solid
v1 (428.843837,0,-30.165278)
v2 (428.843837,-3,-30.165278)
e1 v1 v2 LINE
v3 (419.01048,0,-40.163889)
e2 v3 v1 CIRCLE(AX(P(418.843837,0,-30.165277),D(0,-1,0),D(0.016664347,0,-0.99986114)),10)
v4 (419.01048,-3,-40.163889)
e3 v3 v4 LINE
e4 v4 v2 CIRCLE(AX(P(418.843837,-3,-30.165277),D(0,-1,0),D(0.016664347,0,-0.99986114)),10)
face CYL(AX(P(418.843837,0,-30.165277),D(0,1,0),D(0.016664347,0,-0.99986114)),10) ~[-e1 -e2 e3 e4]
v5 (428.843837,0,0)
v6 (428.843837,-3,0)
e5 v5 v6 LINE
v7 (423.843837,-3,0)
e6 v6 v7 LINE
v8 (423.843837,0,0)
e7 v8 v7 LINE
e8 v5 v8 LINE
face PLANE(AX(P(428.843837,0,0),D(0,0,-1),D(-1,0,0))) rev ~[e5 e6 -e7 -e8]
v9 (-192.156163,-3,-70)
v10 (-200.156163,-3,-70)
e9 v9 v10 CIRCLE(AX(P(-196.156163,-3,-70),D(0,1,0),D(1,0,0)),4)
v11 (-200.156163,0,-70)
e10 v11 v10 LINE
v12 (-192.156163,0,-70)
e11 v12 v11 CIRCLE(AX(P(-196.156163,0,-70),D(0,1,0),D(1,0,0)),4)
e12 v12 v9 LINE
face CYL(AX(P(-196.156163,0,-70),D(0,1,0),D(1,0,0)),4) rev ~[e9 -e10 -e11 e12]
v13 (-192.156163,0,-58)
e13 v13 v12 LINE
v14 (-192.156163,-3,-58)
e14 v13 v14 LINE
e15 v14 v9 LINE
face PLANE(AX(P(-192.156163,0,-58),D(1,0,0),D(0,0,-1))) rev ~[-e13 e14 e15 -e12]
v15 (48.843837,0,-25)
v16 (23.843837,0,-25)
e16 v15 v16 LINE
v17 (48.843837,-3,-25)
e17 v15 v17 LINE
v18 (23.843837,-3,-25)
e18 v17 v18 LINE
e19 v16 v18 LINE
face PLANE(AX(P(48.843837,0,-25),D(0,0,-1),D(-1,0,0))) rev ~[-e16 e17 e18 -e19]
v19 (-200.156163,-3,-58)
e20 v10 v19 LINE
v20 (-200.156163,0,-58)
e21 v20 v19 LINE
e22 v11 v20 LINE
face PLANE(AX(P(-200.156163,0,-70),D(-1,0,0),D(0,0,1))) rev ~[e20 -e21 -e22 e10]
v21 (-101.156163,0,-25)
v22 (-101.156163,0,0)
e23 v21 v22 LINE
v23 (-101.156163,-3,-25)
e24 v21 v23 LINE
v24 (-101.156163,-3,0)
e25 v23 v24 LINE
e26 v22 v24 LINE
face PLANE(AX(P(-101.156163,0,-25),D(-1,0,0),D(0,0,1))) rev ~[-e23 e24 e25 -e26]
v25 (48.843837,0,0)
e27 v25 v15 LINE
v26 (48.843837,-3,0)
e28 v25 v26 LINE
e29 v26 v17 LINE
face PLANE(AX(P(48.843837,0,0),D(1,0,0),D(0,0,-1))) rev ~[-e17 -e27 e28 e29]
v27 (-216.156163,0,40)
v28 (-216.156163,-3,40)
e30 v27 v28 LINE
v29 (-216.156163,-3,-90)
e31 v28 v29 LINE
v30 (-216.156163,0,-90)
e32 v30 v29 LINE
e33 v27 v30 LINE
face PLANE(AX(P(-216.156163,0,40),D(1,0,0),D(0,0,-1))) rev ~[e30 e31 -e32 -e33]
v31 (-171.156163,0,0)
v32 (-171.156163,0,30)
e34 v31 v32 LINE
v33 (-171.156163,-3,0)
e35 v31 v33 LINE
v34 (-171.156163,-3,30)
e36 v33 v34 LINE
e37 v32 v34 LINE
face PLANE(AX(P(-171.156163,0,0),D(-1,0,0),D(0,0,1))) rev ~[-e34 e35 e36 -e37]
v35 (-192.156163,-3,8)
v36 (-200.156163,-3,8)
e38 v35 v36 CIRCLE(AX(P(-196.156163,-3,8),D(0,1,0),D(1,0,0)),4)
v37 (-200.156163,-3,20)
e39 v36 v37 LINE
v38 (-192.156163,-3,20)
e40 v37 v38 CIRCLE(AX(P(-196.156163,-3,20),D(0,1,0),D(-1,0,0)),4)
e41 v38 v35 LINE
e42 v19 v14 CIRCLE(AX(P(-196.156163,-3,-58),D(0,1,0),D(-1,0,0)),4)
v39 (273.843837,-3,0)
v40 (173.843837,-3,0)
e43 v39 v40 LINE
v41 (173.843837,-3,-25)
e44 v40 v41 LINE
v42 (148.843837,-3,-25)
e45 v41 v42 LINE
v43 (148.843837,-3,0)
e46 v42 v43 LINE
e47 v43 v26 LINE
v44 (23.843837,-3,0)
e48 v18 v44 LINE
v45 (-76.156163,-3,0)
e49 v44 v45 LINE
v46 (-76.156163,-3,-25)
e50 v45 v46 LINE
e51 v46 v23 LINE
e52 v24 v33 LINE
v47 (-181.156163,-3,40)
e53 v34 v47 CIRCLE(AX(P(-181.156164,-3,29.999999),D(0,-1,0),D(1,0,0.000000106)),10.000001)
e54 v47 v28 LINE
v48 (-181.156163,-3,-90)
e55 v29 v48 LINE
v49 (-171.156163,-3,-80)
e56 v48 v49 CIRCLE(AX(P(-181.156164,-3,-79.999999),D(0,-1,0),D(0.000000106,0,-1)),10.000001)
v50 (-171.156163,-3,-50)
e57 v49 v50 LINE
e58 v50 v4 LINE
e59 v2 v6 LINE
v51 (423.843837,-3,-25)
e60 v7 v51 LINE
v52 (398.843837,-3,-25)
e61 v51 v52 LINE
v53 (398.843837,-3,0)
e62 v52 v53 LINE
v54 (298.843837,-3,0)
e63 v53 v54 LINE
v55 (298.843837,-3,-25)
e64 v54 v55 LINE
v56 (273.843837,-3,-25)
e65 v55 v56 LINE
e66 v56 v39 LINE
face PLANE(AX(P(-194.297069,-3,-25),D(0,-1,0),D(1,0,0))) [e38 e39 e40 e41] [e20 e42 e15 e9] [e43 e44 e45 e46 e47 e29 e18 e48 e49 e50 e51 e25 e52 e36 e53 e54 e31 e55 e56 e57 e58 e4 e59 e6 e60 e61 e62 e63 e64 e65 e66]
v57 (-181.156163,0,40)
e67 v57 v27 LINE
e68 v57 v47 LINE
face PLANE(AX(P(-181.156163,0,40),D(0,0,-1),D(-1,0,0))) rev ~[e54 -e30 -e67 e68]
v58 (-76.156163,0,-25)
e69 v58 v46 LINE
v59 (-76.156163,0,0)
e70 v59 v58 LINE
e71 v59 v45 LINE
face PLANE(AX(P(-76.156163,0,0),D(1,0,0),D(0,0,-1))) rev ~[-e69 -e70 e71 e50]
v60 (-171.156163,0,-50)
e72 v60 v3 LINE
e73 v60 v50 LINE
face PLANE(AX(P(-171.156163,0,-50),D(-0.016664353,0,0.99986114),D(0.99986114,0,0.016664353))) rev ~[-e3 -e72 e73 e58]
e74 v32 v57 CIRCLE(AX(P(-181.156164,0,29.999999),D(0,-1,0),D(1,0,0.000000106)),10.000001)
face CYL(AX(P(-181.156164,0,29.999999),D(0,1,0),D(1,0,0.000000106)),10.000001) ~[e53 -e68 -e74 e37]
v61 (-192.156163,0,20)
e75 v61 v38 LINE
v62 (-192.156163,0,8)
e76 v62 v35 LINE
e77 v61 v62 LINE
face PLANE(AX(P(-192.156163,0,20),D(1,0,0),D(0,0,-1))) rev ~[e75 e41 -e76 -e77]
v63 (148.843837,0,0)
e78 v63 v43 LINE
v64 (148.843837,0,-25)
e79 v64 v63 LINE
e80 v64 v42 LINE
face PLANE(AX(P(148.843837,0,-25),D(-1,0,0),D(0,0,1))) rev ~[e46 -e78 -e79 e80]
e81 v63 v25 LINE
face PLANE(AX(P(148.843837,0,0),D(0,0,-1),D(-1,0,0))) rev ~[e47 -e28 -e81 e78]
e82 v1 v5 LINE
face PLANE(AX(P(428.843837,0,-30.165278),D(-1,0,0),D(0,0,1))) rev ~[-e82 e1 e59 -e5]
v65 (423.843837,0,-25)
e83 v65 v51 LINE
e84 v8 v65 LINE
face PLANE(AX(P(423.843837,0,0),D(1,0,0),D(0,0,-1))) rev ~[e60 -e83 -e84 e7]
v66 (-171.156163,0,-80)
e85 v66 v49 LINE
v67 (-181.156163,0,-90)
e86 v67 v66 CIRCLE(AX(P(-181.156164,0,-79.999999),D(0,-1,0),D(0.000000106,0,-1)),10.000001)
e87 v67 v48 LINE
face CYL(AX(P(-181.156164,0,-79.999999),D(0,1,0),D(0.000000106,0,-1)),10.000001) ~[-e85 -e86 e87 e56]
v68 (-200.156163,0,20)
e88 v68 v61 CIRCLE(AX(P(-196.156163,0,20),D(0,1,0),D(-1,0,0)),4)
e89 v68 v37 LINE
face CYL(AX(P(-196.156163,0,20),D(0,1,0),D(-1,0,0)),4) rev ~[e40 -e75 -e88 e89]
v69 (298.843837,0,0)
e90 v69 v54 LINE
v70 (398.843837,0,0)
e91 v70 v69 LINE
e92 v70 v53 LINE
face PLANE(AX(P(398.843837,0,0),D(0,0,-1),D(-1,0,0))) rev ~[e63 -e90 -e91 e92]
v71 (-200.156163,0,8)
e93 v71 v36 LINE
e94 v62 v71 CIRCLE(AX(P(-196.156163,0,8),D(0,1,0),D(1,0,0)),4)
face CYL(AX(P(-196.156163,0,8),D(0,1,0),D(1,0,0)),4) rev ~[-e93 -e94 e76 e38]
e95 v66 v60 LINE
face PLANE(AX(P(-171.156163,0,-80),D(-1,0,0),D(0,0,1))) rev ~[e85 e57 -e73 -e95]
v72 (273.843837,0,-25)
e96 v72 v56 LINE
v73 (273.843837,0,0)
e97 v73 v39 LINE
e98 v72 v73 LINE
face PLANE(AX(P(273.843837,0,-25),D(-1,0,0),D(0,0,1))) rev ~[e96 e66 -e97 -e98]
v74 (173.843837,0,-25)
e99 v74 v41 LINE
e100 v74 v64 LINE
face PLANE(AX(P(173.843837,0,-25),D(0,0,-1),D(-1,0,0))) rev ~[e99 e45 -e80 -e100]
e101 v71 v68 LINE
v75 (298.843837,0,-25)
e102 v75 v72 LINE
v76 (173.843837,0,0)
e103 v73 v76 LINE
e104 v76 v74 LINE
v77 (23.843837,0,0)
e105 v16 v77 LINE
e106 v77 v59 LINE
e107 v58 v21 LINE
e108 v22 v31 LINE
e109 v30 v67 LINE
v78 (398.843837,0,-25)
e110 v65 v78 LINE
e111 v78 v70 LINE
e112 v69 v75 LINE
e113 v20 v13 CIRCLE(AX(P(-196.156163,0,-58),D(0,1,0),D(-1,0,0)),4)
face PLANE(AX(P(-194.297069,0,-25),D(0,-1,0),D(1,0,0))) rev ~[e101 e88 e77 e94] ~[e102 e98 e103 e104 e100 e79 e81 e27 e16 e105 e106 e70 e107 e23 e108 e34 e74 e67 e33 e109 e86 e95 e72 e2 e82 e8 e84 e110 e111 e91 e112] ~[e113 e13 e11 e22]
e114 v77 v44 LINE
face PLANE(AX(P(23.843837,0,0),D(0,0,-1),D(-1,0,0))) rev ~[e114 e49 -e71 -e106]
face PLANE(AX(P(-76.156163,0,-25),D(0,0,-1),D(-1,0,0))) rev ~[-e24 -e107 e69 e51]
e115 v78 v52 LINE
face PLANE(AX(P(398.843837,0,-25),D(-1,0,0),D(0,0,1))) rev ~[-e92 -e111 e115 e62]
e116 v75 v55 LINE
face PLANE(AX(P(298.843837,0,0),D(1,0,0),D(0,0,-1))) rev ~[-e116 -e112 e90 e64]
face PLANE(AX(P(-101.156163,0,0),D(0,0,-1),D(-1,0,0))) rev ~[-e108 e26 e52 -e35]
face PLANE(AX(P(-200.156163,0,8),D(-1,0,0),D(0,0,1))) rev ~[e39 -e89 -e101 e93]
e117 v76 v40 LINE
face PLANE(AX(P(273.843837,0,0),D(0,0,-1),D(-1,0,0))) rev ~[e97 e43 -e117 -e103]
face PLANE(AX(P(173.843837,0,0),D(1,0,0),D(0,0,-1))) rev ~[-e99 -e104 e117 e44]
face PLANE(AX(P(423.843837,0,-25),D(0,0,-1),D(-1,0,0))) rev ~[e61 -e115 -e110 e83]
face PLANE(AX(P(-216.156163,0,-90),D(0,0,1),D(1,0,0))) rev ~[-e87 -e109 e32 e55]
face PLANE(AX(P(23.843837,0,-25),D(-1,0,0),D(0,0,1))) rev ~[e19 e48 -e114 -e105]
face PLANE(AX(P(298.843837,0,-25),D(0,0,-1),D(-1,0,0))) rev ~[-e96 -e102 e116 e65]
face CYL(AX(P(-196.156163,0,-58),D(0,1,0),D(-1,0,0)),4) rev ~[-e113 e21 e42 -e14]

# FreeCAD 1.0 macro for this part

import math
import FreeCAD as App
import Part
import Sketcher
from FreeCAD import Vector

doc = App.newDocument("Part")
body = doc.addObject("PartDesign::Body", "Body")

sketch1 = body.newObject("Sketcher::SketchObject", "Sketch")
sketch1.AttachmentSupport = (doc.getObject("XZ_Plane"), [""])
sketch1.MapMode = "FlatFace"
sketch1.addGeometry([
    Part.ArcOfCircle(Part.Circle(Vector(-181.156164, 29.999999, 0), Vector(0, 0, 1), 10.000001), math.radians(0.000006), math.radians(89.999994)),
    Part.LineSegment(Vector(-181.156163, 40, 0), Vector(-216.156163, 40, 0)),
    Part.LineSegment(Vector(-216.156163, 40, 0), Vector(-216.156163, -90, 0)),
    Part.LineSegment(Vector(-216.156163, -90, 0), Vector(-181.156163, -90, 0)),
    Part.ArcOfCircle(Part.Circle(Vector(-181.156164, -79.999999, 0), Vector(0, 0, 1), 10.000001), math.radians(-89.999994), math.radians(-0.000006)),
    Part.LineSegment(Vector(-171.156163, -80, 0), Vector(-171.156163, -50, 0)),
    Part.LineSegment(Vector(-171.156163, -50, 0), Vector(419.01048, -40.163889, 0)),
    Part.ArcOfCircle(Part.Circle(Vector(418.843837, -30.165277, 0), Vector(0, 0, 1), 10), math.radians(-89.045159), math.radians(-0.000005)),
    Part.LineSegment(Vector(428.843837, -30.165278, 0), Vector(428.843837, 0, 0)),
    Part.LineSegment(Vector(428.843837, 0, 0), Vector(423.843837, 0, 0)),
    Part.LineSegment(Vector(423.843837, 0, 0), Vector(423.843837, -25, 0)),
    Part.LineSegment(Vector(423.843837, -25, 0), Vector(398.843837, -25, 0)),
    Part.LineSegment(Vector(398.843837, -25, 0), Vector(398.843837, 0, 0)),
    Part.LineSegment(Vector(398.843837, 0, 0), Vector(298.843837, 0, 0)),
    Part.LineSegment(Vector(298.843837, 0, 0), Vector(298.843837, -25, 0)),
    Part.LineSegment(Vector(298.843837, -25, 0), Vector(273.843837, -25, 0)),
    Part.LineSegment(Vector(273.843837, -25, 0), Vector(273.843837, 0, 0)),
    Part.LineSegment(Vector(273.843837, 0, 0), Vector(173.843837, 0, 0)),
    Part.LineSegment(Vector(173.843837, 0, 0), Vector(173.843837, -25, 0)),
    Part.LineSegment(Vector(173.843837, -25, 0), Vector(148.843837, -25, 0)),
    Part.LineSegment(Vector(148.843837, -25, 0), Vector(148.843837, 0, 0)),
    Part.LineSegment(Vector(148.843837, 0, 0), Vector(48.843837, 0, 0)),
    Part.LineSegment(Vector(48.843837, 0, 0), Vector(48.843837, -25, 0)),
    Part.LineSegment(Vector(48.843837, -25, 0), Vector(23.843837, -25, 0)),
    Part.LineSegment(Vector(23.843837, -25, 0), Vector(23.843837, 0, 0)),
    Part.LineSegment(Vector(23.843837, 0, 0), Vector(-76.156163, 0, 0)),
    Part.LineSegment(Vector(-76.156163, 0, 0), Vector(-76.156163, -25, 0)),
    Part.LineSegment(Vector(-76.156163, -25, 0), Vector(-101.156163, -25, 0)),
    Part.LineSegment(Vector(-101.156163, -25, 0), Vector(-101.156163, 0, 0)),
    Part.LineSegment(Vector(-101.156163, 0, 0), Vector(-171.156163, 0, 0)),
    Part.LineSegment(Vector(-171.156163, 0, 0), Vector(-171.156163, 30, 0)),
    Part.ArcOfCircle(Part.Circle(Vector(-196.156163, -58, 0), Vector(0, 0, 1), 4), math.radians(0), math.radians(180)),
    Part.LineSegment(Vector(-192.156163, -58, 0), Vector(-192.156163, -70, 0)),
    Part.ArcOfCircle(Part.Circle(Vector(-196.156163, -70, 0), Vector(0, 0, 1), 4), math.radians(180), math.radians(360)),
    Part.LineSegment(Vector(-200.156163, -70, 0), Vector(-200.156163, -58, 0)),
    Part.ArcOfCircle(Part.Circle(Vector(-196.156163, 8, 0), Vector(0, 0, 1), 4), math.radians(180), math.radians(360)),
    Part.LineSegment(Vector(-200.156163, 8, 0), Vector(-200.156163, 20, 0)),
    Part.ArcOfCircle(Part.Circle(Vector(-196.156163, 20, 0), Vector(0, 0, 1), 4), math.radians(0), math.radians(180)),
    Part.LineSegment(Vector(-192.156163, 20, 0), Vector(-192.156163, 8, 0)),
], False)
sketch1.addConstraint([
    Sketcher.Constraint("Tangent", 0, 2, 1, 1),
    Sketcher.Constraint("Coincident", 1, 2, 2, 1),
    Sketcher.Constraint("Coincident", 2, 2, 3, 1),
    Sketcher.Constraint("Tangent", 3, 2, 4, 1),
    Sketcher.Constraint("Tangent", 4, 2, 5, 1),
    Sketcher.Constraint("Coincident", 5, 2, 6, 1),
    Sketcher.Constraint("Tangent", 6, 2, 7, 1),
    Sketcher.Constraint("Tangent", 7, 2, 8, 1),
    Sketcher.Constraint("Coincident", 8, 2, 9, 1),
    Sketcher.Constraint("Coincident", 9, 2, 10, 1),
    Sketcher.Constraint("Coincident", 10, 2, 11, 1),
    Sketcher.Constraint("Coincident", 11, 2, 12, 1),
    Sketcher.Constraint("Coincident", 12, 2, 13, 1),
    Sketcher.Constraint("Coincident", 13, 2, 14, 1),
    Sketcher.Constraint("Coincident", 14, 2, 15, 1),
    Sketcher.Constraint("Coincident", 15, 2, 16, 1),
    Sketcher.Constraint("Coincident", 16, 2, 17, 1),
    Sketcher.Constraint("Coincident", 17, 2, 18, 1),
    Sketcher.Constraint("Coincident", 18, 2, 19, 1),
    Sketcher.Constraint("Coincident", 19, 2, 20, 1),
    Sketcher.Constraint("Coincident", 20, 2, 21, 1),
    Sketcher.Constraint("Coincident", 21, 2, 22, 1),
    Sketcher.Constraint("Coincident", 22, 2, 23, 1),
    Sketcher.Constraint("Coincident", 23, 2, 24, 1),
    Sketcher.Constraint("Coincident", 24, 2, 25, 1),
    Sketcher.Constraint("Coincident", 25, 2, 26, 1),
    Sketcher.Constraint("Coincident", 26, 2, 27, 1),
    Sketcher.Constraint("Coincident", 27, 2, 28, 1),
    Sketcher.Constraint("Coincident", 28, 2, 29, 1),
    Sketcher.Constraint("Coincident", 29, 2, 30, 1),
    Sketcher.Constraint("Tangent", 30, 2, 0, 1),
    Sketcher.Constraint("Tangent", 31, 1, 32, 1),
    Sketcher.Constraint("Tangent", 32, 2, 33, 2),
    Sketcher.Constraint("Tangent", 33, 1, 34, 1),
    Sketcher.Constraint("Tangent", 34, 2, 31, 2),
    Sketcher.Constraint("Tangent", 35, 1, 36, 1),
    Sketcher.Constraint("Tangent", 36, 2, 37, 2),
    Sketcher.Constraint("Tangent", 37, 1, 38, 1),
    Sketcher.Constraint("Tangent", 38, 2, 35, 2),
    Sketcher.Constraint("Horizontal", 1),
    Sketcher.Constraint("Vertical", 2),
    Sketcher.Constraint("Horizontal", 3),
    Sketcher.Constraint("Vertical", 5),
    Sketcher.Constraint("Vertical", 8),
    Sketcher.Constraint("Horizontal", 9),
    Sketcher.Constraint("Vertical", 10),
    Sketcher.Constraint("Horizontal", 11),
    Sketcher.Constraint("Vertical", 12),
    Sketcher.Constraint("Horizontal", 13),
    Sketcher.Constraint("Vertical", 14),
    Sketcher.Constraint("Horizontal", 15),
    Sketcher.Constraint("Vertical", 16),
    Sketcher.Constraint("Horizontal", 17),
    Sketcher.Constraint("Vertical", 18),
    Sketcher.Constraint("Horizontal", 19),
    Sketcher.Constraint("Vertical", 20),
    Sketcher.Constraint("Horizontal", 21),
    Sketcher.Constraint("Vertical", 22),
    Sketcher.Constraint("Horizontal", 23),
    Sketcher.Constraint("Vertical", 24),
    Sketcher.Constraint("Horizontal", 25),
    Sketcher.Constraint("Vertical", 26),
    Sketcher.Constraint("Horizontal", 27),
    Sketcher.Constraint("Vertical", 28),
    Sketcher.Constraint("Horizontal", 29),
    Sketcher.Constraint("Vertical", 30),
    Sketcher.Constraint("Vertical", 32),
    Sketcher.Constraint("Vertical", 34),
    Sketcher.Constraint("Vertical", 36),
    Sketcher.Constraint("Vertical", 38),
    Sketcher.Constraint("Equal", 0, 4),
    Sketcher.Constraint("Equal", 4, 7),
    Sketcher.Constraint("Equal", 33, 35),
    Sketcher.Constraint("PointOnObject", 8, 2, -1),
    Sketcher.Constraint("PointOnObject", 12, 2, -1),
    Sketcher.Constraint("PointOnObject", 16, 2, -1),
    Sketcher.Constraint("PointOnObject", 20, 2, -1),
    Sketcher.Constraint("PointOnObject", 24, 2, -1),
    Sketcher.Constraint("PointOnObject", 28, 2, -1),
    Sketcher.Constraint("Horizontal", 11, 2, 14, 2),
    Sketcher.Constraint("Horizontal", 15, 2, 18, 2),
    Sketcher.Constraint("Horizontal", 19, 2, 22, 2),
    Sketcher.Constraint("Horizontal", 23, 2, 26, 2),
    Sketcher.Constraint("Vertical", 0, 3, 4, 3),
    Sketcher.Constraint("Vertical", 33, 3, 35, 3),
    Sketcher.Constraint("Equal", 11, 15),
    Sketcher.Constraint("Equal", 13, 17),
    Sketcher.Constraint("Equal", 15, 19),
    Sketcher.Constraint("Equal", 17, 21),
    Sketcher.Constraint("Equal", 19, 23),
    Sketcher.Constraint("Equal", 21, 25),
    Sketcher.Constraint("Equal", 23, 27),
    Sketcher.Constraint("Equal", 27, 10),
    Sketcher.Constraint("Equal", 5, 30),
    Sketcher.Constraint("Equal", 34, 36),
    Sketcher.Constraint("Radius", 0, 10.000001),
    Sketcher.Constraint("Radius", 31, 4.0),
    Sketcher.Constraint("DistanceX", 1, 2, 1, 1, 35.0),
    Sketcher.Constraint("DistanceX", 9, 2, 9, 1, 5.0),
    Sketcher.Constraint("DistanceX", 11, 2, 11, 1, 25.0),
    Sketcher.Constraint("DistanceX", 13, 2, 13, 1, 100.0),
    Sketcher.Constraint("DistanceX", 29, 2, 29, 1, 70.0),
    Sketcher.Constraint("DistanceY", 2, 2, 2, 1, 130.0),
    Sketcher.Constraint("DistanceY", 5, 1, 5, 2, 30.0),
    Sketcher.Constraint("DistanceY", 32, 2, 32, 1, 12.0),
    Sketcher.Constraint("DistanceY", 31, 3, -1, 1, 58.0),
    Sketcher.Constraint("DistanceY", -1, 1, 35, 3, 8.0),
    Sketcher.Constraint("DistanceX", 31, 3, 4, 3, 14.999999),
    Sketcher.Constraint("DistanceY", 8, 1, 8, 2, 30.165278),
    Sketcher.Constraint("DistanceX", -1, 1, 6, 2, 419.01048),
])
pad1 = body.newObject("PartDesign::Pad", "Pad")
pad1.Profile = sketch1
pad1.Length = 3

doc.recompute()
